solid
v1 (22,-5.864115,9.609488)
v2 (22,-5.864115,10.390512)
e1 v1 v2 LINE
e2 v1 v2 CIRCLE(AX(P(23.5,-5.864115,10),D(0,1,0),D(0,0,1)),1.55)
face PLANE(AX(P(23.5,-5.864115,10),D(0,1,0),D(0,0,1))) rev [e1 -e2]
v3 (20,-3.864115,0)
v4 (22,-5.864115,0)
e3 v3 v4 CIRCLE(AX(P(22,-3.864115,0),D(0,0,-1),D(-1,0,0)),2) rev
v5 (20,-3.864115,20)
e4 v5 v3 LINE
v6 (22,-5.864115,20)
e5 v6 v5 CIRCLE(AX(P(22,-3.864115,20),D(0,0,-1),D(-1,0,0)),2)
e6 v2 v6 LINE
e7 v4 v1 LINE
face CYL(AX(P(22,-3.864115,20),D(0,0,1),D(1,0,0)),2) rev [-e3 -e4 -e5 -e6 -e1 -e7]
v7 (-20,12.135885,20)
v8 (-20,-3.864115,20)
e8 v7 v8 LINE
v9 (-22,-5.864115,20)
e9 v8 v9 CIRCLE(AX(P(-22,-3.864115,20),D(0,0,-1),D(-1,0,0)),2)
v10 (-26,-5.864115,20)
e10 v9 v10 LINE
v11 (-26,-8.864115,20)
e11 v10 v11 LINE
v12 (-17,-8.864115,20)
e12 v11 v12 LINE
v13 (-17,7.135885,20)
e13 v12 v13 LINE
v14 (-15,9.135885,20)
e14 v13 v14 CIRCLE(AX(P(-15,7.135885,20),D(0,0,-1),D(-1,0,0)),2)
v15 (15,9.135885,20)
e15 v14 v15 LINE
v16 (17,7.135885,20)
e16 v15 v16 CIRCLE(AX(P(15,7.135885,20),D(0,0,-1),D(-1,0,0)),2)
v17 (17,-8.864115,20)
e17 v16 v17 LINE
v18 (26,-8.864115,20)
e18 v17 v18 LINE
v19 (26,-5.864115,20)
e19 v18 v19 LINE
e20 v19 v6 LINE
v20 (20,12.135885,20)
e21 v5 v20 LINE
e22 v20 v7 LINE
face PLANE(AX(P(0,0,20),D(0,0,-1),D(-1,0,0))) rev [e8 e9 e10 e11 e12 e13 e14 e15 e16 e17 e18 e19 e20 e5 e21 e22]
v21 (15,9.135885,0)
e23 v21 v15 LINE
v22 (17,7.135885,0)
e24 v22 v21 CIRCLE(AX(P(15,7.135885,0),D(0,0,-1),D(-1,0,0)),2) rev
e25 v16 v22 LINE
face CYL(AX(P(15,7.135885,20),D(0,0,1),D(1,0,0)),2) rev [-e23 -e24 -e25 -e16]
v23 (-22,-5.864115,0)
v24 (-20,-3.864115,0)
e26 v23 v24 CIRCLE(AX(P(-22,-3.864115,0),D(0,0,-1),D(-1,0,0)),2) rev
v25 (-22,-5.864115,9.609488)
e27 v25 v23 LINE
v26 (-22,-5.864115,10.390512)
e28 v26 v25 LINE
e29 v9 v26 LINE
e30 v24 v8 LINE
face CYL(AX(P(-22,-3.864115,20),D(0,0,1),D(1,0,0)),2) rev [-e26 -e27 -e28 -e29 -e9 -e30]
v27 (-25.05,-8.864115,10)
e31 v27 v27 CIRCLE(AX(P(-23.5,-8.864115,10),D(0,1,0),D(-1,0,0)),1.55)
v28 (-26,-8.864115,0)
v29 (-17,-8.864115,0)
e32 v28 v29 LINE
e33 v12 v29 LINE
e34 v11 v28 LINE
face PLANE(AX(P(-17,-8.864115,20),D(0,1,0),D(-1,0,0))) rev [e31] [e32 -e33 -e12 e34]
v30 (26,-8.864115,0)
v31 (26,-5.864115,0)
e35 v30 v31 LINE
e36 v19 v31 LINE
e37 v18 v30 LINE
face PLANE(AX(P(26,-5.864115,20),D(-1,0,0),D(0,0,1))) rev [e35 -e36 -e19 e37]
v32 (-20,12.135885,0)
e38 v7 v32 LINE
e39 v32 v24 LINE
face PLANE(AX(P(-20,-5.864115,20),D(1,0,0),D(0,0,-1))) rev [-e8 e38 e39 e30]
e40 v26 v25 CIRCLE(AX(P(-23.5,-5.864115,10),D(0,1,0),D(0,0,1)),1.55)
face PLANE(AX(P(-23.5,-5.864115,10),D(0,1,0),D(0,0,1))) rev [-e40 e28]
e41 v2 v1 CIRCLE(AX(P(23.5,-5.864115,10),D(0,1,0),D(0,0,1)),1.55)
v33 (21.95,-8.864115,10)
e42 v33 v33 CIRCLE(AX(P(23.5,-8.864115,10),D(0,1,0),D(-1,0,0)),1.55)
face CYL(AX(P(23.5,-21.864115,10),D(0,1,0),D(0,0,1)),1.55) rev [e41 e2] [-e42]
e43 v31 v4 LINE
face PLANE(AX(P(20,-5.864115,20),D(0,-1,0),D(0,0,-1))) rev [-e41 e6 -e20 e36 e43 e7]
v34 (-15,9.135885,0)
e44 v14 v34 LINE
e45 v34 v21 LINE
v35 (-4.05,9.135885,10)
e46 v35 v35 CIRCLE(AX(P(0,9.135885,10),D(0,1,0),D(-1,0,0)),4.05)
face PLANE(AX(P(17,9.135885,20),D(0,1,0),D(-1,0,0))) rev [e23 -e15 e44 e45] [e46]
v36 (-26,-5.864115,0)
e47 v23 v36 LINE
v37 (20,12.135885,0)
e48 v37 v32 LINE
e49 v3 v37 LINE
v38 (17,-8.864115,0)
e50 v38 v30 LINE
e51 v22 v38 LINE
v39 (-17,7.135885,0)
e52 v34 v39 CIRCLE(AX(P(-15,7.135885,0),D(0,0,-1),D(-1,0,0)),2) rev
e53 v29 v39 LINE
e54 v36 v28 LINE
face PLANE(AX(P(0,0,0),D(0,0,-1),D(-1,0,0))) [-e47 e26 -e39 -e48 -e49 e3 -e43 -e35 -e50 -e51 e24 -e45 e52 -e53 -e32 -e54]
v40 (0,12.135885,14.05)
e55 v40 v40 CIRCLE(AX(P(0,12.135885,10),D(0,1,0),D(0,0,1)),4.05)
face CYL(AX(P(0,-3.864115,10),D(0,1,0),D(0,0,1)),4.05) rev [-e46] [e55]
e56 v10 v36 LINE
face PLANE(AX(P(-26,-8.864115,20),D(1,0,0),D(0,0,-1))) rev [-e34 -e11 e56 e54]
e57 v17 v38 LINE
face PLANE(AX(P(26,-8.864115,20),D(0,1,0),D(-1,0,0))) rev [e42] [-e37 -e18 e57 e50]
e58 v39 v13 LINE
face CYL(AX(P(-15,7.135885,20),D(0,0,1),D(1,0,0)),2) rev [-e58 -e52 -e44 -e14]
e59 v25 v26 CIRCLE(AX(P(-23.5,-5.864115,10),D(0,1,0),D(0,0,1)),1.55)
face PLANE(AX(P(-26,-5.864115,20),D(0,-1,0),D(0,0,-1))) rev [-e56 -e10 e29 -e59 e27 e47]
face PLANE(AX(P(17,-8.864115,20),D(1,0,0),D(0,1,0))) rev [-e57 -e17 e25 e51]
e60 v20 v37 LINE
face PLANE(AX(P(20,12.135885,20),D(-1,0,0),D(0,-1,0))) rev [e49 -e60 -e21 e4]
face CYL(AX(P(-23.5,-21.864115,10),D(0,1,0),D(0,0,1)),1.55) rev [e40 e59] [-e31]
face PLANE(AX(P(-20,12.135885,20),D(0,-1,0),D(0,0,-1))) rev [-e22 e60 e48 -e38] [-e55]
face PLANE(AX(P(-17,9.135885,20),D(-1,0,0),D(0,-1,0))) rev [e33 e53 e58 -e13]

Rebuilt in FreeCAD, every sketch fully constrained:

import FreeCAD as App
import Part
import Sketcher

V = App.Vector
Q = App.Units.Quantity


def edges_at(feature, points):
    """Names of the edges that pass closest to the given points."""
    edges = feature.Shape.Edges
    near = lambda p: min(range(len(edges)), key=lambda i: edges[i].distToShape(Part.Vertex(*p))[0])
    return sorted({f"Edge{near(p) + 1}" for p in points})


def add_polygon(sketch, points):
    """Adds a closed chain of lines whose ends are joined by coincident constraints."""
    first, n = sketch.GeometryCount, len(points)
    for a, b in zip(points, points[1:] + points[:1]):
        sketch.addGeometry(Part.LineSegment(App.Vector(*a, 0), App.Vector(*b, 0)), False)
    for i in range(n):
        sketch.addConstraint(Sketcher.Constraint("Coincident", first + i, 2, first + (i + 1) % n, 1))

doc = App.newDocument("Part")
params = doc.addObject("Spreadsheet::Sheet", "Params")
for row, (alias, value) in enumerate([
    ("sketch1_width", "9 mm"),
    ("sketch1_width2", "34 mm"),
    ("sketch1_width3", "6 mm"),
    ("sketch1_height", "18 mm"),
    ("sketch1_height2", "3 mm"),
    ("pad1_length", "20 mm"),
    ("sketch2_diameter", "8.1 mm"),
    ("pocket1_length", "16 mm"),
    ("fillet_radius", "2 mm"),
    ("sketch3_diameter", "3.1 mm"),
    ("pocket2_length", "16 mm"),
], start=1):
    params.set(f"A{row}", alias)
    params.set(f"B{row}", "=" + value)
    params.setAlias(f"B{row}", alias)

body = doc.addObject("PartDesign::Body", "Body")

# Sketch on XY plane
sketch1 = body.newObject("Sketcher::SketchObject", "Sketch")
sketch1.AttachmentSupport = (doc.getObject("XY_Plane"), [""])
sketch1.MapMode = "FlatFace"
add_polygon(sketch1, [(-26, -8.9), (-17, -8.9), (-17, 9.1), (17, 9.1), (17, -8.9), (26, -8.9), (26, -5.9), (20, -5.9), (20, 12.1), (-20, 12.1), (-20, -5.9), (-26, -5.9)])  # lines 0-11
sketch1.addConstraint([
    Sketcher.Constraint("Horizontal", 0),
    Sketcher.Constraint("Vertical", 1),
    Sketcher.Constraint("Horizontal", 2),
    Sketcher.Constraint("Vertical", 3),
    Sketcher.Constraint("Horizontal", 4),
    Sketcher.Constraint("Vertical", 5),
    Sketcher.Constraint("Horizontal", 6),
    Sketcher.Constraint("Vertical", 7),
    Sketcher.Constraint("Horizontal", 8),
    Sketcher.Constraint("Vertical", 9),
    Sketcher.Constraint("Horizontal", 10),
    Sketcher.Constraint("Vertical", 11),
    Sketcher.Constraint("Symmetric", 0, 2, 3, 2, -2),
    Sketcher.Constraint("Symmetric", 6, 2, 9, 2, -2),
    Sketcher.Constraint("Equal", 0, 4),
    Sketcher.Constraint("Equal", 3, 7),
    Sketcher.Constraint("DistanceX", 0, 1, 0, 2, Q("9 mm")),
    Sketcher.Constraint("DistanceX", 2, 1, 2, 2, Q("34 mm")),
    Sketcher.Constraint("DistanceX", 6, 2, 6, 1, Q("6 mm")),
    Sketcher.Constraint("DistanceY", 1, 1, 1, 2, Q("18 mm")),
    Sketcher.Constraint("DistanceY", 5, 1, 5, 2, Q("3 mm")),
    Sketcher.Constraint("DistanceY", 0, 2, -1, 1, Q("8.864115 mm")),
])
sketch1.setExpression("Constraints[28]", "Params.sketch1_width")
sketch1.setExpression("Constraints[29]", "Params.sketch1_width2")
sketch1.setExpression("Constraints[30]", "Params.sketch1_width3")
sketch1.setExpression("Constraints[31]", "Params.sketch1_height")
sketch1.setExpression("Constraints[32]", "Params.sketch1_height2")
pad1 = body.newObject("PartDesign::Pad", "Pad")
pad1.Profile = sketch1
pad1.setExpression("Length", "Params.pad1_length")

# Sketch on XZ plane
sketch2 = body.newObject("Sketcher::SketchObject", "Sketch001")
sketch2.AttachmentSupport = (doc.getObject("XZ_Plane"), [""])
sketch2.MapMode = "FlatFace"
sketch2.AttachmentOffset = App.Placement(V(0, 0, -12.135885), App.Rotation())
sketch2.addGeometry(Part.Circle(V(0, 10, 0), V(0, 0, 1), 4), False)
sketch2.addConstraint([
    Sketcher.Constraint("PointOnObject", 0, 3, -2),
    Sketcher.Constraint("Diameter", 0, Q("8.1 mm")),
    Sketcher.Constraint("DistanceY", -1, 1, 0, 3, Q("10 mm")),
])
sketch2.setExpression("Constraints[1]", "Params.sketch2_diameter")
pocket1 = body.newObject("PartDesign::Pocket", "Pocket")
pocket1.Profile = sketch2
pocket1.setExpression("Length", "Params.pocket1_length")
pocket1.Reversed = True
doc.recompute()

fillet = body.newObject("PartDesign::Fillet", "Fillet")
fillet.Base = (pocket1, edges_at(pocket1, [
    (-20, -5.864, 10),
    (20, -5.864, 10),
    (17, 9.136, 10),
    (-17, 9.136, 10),
]))
fillet.setExpression("Radius", "Params.fillet_radius")

# Sketch on XZ plane
sketch3 = body.newObject("Sketcher::SketchObject", "Sketch002")
sketch3.AttachmentSupport = (doc.getObject("XZ_Plane"), [""])
sketch3.MapMode = "FlatFace"
sketch3.AttachmentOffset = App.Placement(V(0, 0, 5.864115), App.Rotation())
sketch3.addGeometry([
    Part.Circle(V(-23.5, 10, 0), V(0, 0, 1), 1.6),
    Part.Circle(V(23.5, 10, 0), V(0, 0, 1), 1.6),
], False)
sketch3.addConstraint([
    Sketcher.Constraint("Equal", 0, 1),
    Sketcher.Constraint("Symmetric", 0, 3, 1, 3, -2),
    Sketcher.Constraint("Diameter", 0, Q("3.1 mm")),
    Sketcher.Constraint("DistanceY", -1, 1, 0, 3, Q("10 mm")),
    Sketcher.Constraint("DistanceX", 0, 3, 1, 3, Q("47 mm")),
])
sketch3.setExpression("Constraints[2]", "Params.sketch3_diameter")
pocket2 = body.newObject("PartDesign::Pocket", "Pocket001")
pocket2.Profile = sketch3
pocket2.setExpression("Length", "Params.pocket2_length")
pocket2.Reversed = True

doc.recompute()
